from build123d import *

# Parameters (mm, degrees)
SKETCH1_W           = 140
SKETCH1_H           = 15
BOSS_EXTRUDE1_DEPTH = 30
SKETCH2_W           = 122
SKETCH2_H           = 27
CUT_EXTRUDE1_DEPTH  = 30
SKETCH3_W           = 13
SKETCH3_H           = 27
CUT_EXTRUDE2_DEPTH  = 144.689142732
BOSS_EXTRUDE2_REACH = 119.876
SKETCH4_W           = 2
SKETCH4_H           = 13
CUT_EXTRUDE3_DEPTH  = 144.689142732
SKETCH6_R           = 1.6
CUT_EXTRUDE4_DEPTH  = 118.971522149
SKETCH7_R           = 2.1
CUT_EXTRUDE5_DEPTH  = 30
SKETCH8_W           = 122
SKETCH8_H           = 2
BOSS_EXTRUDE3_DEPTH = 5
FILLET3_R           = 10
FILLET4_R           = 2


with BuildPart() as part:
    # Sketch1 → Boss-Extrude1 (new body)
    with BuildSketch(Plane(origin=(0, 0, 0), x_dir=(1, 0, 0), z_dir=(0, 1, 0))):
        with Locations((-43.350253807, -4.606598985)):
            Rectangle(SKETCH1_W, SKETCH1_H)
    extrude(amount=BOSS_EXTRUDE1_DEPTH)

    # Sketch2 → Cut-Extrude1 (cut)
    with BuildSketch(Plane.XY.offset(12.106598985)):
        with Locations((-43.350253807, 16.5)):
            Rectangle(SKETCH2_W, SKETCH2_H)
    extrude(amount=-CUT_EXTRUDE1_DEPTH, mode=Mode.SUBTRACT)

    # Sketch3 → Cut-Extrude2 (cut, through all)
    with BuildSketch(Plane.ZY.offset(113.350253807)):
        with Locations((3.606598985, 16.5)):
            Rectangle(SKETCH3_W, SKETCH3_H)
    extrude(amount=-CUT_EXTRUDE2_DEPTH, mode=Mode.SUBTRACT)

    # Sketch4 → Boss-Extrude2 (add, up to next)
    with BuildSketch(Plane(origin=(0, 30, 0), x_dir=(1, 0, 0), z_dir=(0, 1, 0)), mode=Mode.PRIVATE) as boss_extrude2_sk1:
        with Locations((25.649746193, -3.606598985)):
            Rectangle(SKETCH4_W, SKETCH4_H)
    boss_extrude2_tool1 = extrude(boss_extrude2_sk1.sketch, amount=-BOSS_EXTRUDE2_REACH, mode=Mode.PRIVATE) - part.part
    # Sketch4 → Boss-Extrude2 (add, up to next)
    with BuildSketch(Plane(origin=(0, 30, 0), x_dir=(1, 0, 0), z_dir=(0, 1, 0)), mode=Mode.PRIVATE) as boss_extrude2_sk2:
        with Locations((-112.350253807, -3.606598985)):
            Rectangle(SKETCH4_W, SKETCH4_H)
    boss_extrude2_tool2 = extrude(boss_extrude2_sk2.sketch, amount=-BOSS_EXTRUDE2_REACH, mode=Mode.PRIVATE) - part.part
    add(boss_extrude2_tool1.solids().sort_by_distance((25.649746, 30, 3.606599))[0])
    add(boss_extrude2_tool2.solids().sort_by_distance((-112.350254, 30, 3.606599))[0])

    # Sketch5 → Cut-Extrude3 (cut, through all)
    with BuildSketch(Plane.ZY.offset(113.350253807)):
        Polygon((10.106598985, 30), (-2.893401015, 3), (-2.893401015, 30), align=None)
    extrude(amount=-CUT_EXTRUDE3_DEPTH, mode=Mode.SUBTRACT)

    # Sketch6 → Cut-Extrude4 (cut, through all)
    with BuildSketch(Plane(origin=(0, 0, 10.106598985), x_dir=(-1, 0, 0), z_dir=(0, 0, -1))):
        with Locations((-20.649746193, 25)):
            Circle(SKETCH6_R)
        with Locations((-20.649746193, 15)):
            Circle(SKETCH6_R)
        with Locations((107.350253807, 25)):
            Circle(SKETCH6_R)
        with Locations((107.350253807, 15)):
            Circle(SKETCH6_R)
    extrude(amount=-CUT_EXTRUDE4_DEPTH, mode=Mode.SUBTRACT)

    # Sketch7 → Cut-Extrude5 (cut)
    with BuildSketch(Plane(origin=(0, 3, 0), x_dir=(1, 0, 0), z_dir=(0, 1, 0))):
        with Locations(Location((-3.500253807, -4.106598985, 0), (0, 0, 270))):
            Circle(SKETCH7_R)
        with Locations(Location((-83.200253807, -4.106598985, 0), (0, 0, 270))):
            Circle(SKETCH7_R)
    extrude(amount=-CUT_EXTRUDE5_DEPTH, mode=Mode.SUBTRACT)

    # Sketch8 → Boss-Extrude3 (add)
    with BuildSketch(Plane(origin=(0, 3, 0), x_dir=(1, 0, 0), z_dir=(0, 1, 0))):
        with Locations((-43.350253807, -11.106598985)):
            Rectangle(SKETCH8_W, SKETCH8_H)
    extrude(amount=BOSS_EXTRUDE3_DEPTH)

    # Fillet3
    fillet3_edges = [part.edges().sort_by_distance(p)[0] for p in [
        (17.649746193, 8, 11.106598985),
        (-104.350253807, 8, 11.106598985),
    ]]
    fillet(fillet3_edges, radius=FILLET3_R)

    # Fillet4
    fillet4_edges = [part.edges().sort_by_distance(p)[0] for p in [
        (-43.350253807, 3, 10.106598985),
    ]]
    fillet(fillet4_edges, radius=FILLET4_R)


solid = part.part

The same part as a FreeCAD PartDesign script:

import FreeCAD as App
import Part
import Sketcher


def edges_at(feature, points):
    """Names of the edges that pass closest to the given points."""
    edges = feature.Shape.Edges
    near = lambda p: min(range(len(edges)), key=lambda i: edges[i].distToShape(Part.Vertex(*p))[0])
    return sorted({f"Edge{near(p) + 1}" for p in points})

doc = App.newDocument("Part")
params = doc.addObject("Spreadsheet::Sheet", "Params")
for row, (alias, value) in enumerate([
    ("sketch1_width", "140 mm"),
    ("sketch1_height", "15 mm"),
    ("pad1_length", "30 mm"),
    ("sketch2_width", "122 mm"),
    ("sketch2_height", "27 mm"),
    ("pocket1_length", "30 mm"),
    ("sketch3_width", "27 mm"),
    ("sketch3_height", "13 mm"),
    ("sketch4_width", "2 mm"),
    ("sketch4_height", "13 mm"),
    ("sketch5_width", "2 mm"),
    ("sketch5_height", "13 mm"),
    ("sketch6_width", "27 mm"),
    ("sketch6_height", "13 mm"),
    ("sketch7_diameter", "3.2 mm"),
    ("sketch8_diameter", "4.2 mm"),
    ("pocket5_length", "30 mm"),
    ("sketch9_width", "122 mm"),
    ("sketch9_height", "2 mm"),
    ("pad4_length", "5 mm"),
    ("fillet_radius", "10 mm"),
    ("fillet2_radius", "2 mm"),
], start=1):
    params.set(f"A{row}", alias)
    params.set(f"B{row}", "=" + value)
    params.setAlias(f"B{row}", alias)

body = doc.addObject("PartDesign::Body", "Body")

sketch1 = body.newObject("Sketcher::SketchObject", "Sketch")
sketch1.AttachmentSupport = (doc.getObject("XZ_Plane"), [""])
sketch1.MapMode = "FlatFace"
sketch1.addGeometry(Part.LineSegment(App.Vector(-113, -3, 0), App.Vector(-113, 12, 0)), False)
sketch1.addGeometry(Part.LineSegment(App.Vector(-113, 12, 0), App.Vector(27, 12, 0)), False)
sketch1.addGeometry(Part.LineSegment(App.Vector(27, 12, 0), App.Vector(27, -3, 0)), False)
sketch1.addGeometry(Part.LineSegment(App.Vector(27, -3, 0), App.Vector(-113, -3, 0)), False)
sketch1.addConstraint(Sketcher.Constraint("Coincident", 0, 2, 1, 1))
sketch1.addConstraint(Sketcher.Constraint("Coincident", 1, 2, 2, 1))
sketch1.addConstraint(Sketcher.Constraint("Coincident", 2, 2, 3, 1))
sketch1.addConstraint(Sketcher.Constraint("Coincident", 3, 2, 0, 1))
sketch1.addConstraint(Sketcher.Constraint("Vertical", 0))
sketch1.addConstraint(Sketcher.Constraint("Horizontal", 1))
sketch1.addConstraint(Sketcher.Constraint("Vertical", 2))
sketch1.addConstraint(Sketcher.Constraint("Horizontal", 3))
sketch1.addConstraint(Sketcher.Constraint("DistanceX", 1, 1, 1, 2, 140.0))
sketch1.addConstraint(Sketcher.Constraint("DistanceY", 0, 1, 0, 2, 15.0))
sketch1.addConstraint(Sketcher.Constraint("DistanceY", -1, 1, 0, 2, 12.106599))
sketch1.addConstraint(Sketcher.Constraint("DistanceX", 0, 2, -1, 1, 113.350254))
sketch1.setExpression("Constraints[8]", "Params.sketch1_width")
sketch1.setExpression("Constraints[9]", "Params.sketch1_height")
pad1 = body.newObject("PartDesign::Pad", "Pad")
pad1.Profile = sketch1
pad1.setExpression("Length", "Params.pad1_length")
pad1.Reversed = True

sketch2 = body.newObject("Sketcher::SketchObject", "Sketch001")
sketch2.AttachmentSupport = (doc.getObject("XY_Plane"), [""])
sketch2.MapMode = "FlatFace"
sketch2.AttachmentOffset = App.Placement(App.Vector(0, 0, 12.106599), App.Rotation())
sketch2.addGeometry(Part.LineSegment(App.Vector(-104, 30, 0), App.Vector(-104, 3, 0)), False)
sketch2.addGeometry(Part.LineSegment(App.Vector(-104, 3, 0), App.Vector(18, 3, 0)), False)
sketch2.addGeometry(Part.LineSegment(App.Vector(18, 3, 0), App.Vector(18, 30, 0)), False)
sketch2.addGeometry(Part.LineSegment(App.Vector(18, 30, 0), App.Vector(-104, 30, 0)), False)
sketch2.addConstraint(Sketcher.Constraint("Coincident", 0, 2, 1, 1))
sketch2.addConstraint(Sketcher.Constraint("Coincident", 1, 2, 2, 1))
sketch2.addConstraint(Sketcher.Constraint("Coincident", 2, 2, 3, 1))
sketch2.addConstraint(Sketcher.Constraint("Coincident", 3, 2, 0, 1))
sketch2.addConstraint(Sketcher.Constraint("Vertical", 0))
sketch2.addConstraint(Sketcher.Constraint("Horizontal", 1))
sketch2.addConstraint(Sketcher.Constraint("Vertical", 2))
sketch2.addConstraint(Sketcher.Constraint("Horizontal", 3))
sketch2.addConstraint(Sketcher.Constraint("DistanceX", 1, 1, 1, 2, 122.0))
sketch2.addConstraint(Sketcher.Constraint("DistanceY", 0, 2, 0, 1, 27.0))
sketch2.addConstraint(Sketcher.Constraint("DistanceY", -1, 1, 0, 2, 3.0))
sketch2.addConstraint(Sketcher.Constraint("DistanceX", 0, 2, -1, 1, 104.350254))
sketch2.setExpression("Constraints[8]", "Params.sketch2_width")
sketch2.setExpression("Constraints[9]", "Params.sketch2_height")
pocket1 = body.newObject("PartDesign::Pocket", "Pocket")
pocket1.Profile = sketch2
pocket1.setExpression("Length", "Params.pocket1_length")

sketch3 = body.newObject("Sketcher::SketchObject", "Sketch002")
sketch3.AttachmentSupport = (doc.getObject("YZ_Plane"), [""])
sketch3.MapMode = "FlatFace"
sketch3.AttachmentOffset = App.Placement(App.Vector(0, 0, -113.350254), App.Rotation())
sketch3.addGeometry(Part.LineSegment(App.Vector(30, -3, 0), App.Vector(3, -3, 0)), False)
sketch3.addGeometry(Part.LineSegment(App.Vector(3, -3, 0), App.Vector(3, 10, 0)), False)
sketch3.addGeometry(Part.LineSegment(App.Vector(3, 10, 0), App.Vector(30, 10, 0)), False)
sketch3.addGeometry(Part.LineSegment(App.Vector(30, 10, 0), App.Vector(30, -3, 0)), False)
sketch3.addConstraint(Sketcher.Constraint("Coincident", 0, 2, 1, 1))
sketch3.addConstraint(Sketcher.Constraint("Coincident", 1, 2, 2, 1))
sketch3.addConstraint(Sketcher.Constraint("Coincident", 2, 2, 3, 1))
sketch3.addConstraint(Sketcher.Constraint("Coincident", 3, 2, 0, 1))
sketch3.addConstraint(Sketcher.Constraint("Horizontal", 0))
sketch3.addConstraint(Sketcher.Constraint("Vertical", 1))
sketch3.addConstraint(Sketcher.Constraint("Horizontal", 2))
sketch3.addConstraint(Sketcher.Constraint("Vertical", 3))
sketch3.addConstraint(Sketcher.Constraint("DistanceX", 0, 2, 0, 1, 27.0))
sketch3.addConstraint(Sketcher.Constraint("DistanceY", 1, 1, 1, 2, 13.0))
sketch3.addConstraint(Sketcher.Constraint("DistanceX", -1, 1, 0, 2, 3.0))
sketch3.addConstraint(Sketcher.Constraint("DistanceY", 0, 2, -1, 1, 2.893401))
sketch3.setExpression("Constraints[8]", "Params.sketch3_width")
sketch3.setExpression("Constraints[9]", "Params.sketch3_height")
pocket2 = body.newObject("PartDesign::Pocket", "Pocket001")
pocket2.Profile = sketch3
pocket2.Type = "ThroughAll"
pocket2.Reversed = True

sketch4 = body.newObject("Sketcher::SketchObject", "Sketch003")
sketch4.AttachmentSupport = (doc.getObject("XZ_Plane"), [""])
sketch4.MapMode = "FlatFace"
sketch4.AttachmentOffset = App.Placement(App.Vector(0, 0, -30), App.Rotation())
sketch4.addGeometry(Part.LineSegment(App.Vector(24.6, -2.9, 0), App.Vector(24.6, 10.1, 0)), False)
sketch4.addGeometry(Part.LineSegment(App.Vector(24.6, 10.1, 0), App.Vector(26.6, 10.1, 0)), False)
sketch4.addGeometry(Part.LineSegment(App.Vector(26.6, 10.1, 0), App.Vector(26.6, -2.9, 0)), False)
sketch4.addGeometry(Part.LineSegment(App.Vector(26.6, -2.9, 0), App.Vector(24.6, -2.9, 0)), False)
sketch4.addConstraint(Sketcher.Constraint("Coincident", 0, 2, 1, 1))
sketch4.addConstraint(Sketcher.Constraint("Coincident", 1, 2, 2, 1))
sketch4.addConstraint(Sketcher.Constraint("Coincident", 2, 2, 3, 1))
sketch4.addConstraint(Sketcher.Constraint("Coincident", 3, 2, 0, 1))
sketch4.addConstraint(Sketcher.Constraint("Vertical", 0))
sketch4.addConstraint(Sketcher.Constraint("Horizontal", 1))
sketch4.addConstraint(Sketcher.Constraint("Vertical", 2))
sketch4.addConstraint(Sketcher.Constraint("Horizontal", 3))
sketch4.addConstraint(Sketcher.Constraint("DistanceX", 1, 1, 1, 2, 2.0))
sketch4.addConstraint(Sketcher.Constraint("DistanceY", 0, 1, 0, 2, 13.0))
sketch4.addConstraint(Sketcher.Constraint("DistanceY", -1, 1, 0, 2, 10.106599))
sketch4.addConstraint(Sketcher.Constraint("DistanceX", -1, 1, 0, 2, 24.649746))
sketch4.setExpression("Constraints[8]", "Params.sketch4_width")
sketch4.setExpression("Constraints[9]", "Params.sketch4_height")
pad2 = body.newObject("PartDesign::Pad", "Pad001")
pad2.Profile = sketch4
pad2.Type = "UpToFirst"

sketch5 = body.newObject("Sketcher::SketchObject", "Sketch004")
sketch5.AttachmentSupport = (doc.getObject("XZ_Plane"), [""])
sketch5.MapMode = "FlatFace"
sketch5.AttachmentOffset = App.Placement(App.Vector(0, 0, -30), App.Rotation())
sketch5.addGeometry(Part.LineSegment(App.Vector(-113.4, -2.9, 0), App.Vector(-113.4, 10.1, 0)), False)
sketch5.addGeometry(Part.LineSegment(App.Vector(-113.4, 10.1, 0), App.Vector(-111.4, 10.1, 0)), False)
sketch5.addGeometry(Part.LineSegment(App.Vector(-111.4, 10.1, 0), App.Vector(-111.4, -2.9, 0)), False)
sketch5.addGeometry(Part.LineSegment(App.Vector(-111.4, -2.9, 0), App.Vector(-113.4, -2.9, 0)), False)
sketch5.addConstraint(Sketcher.Constraint("Coincident", 0, 2, 1, 1))
sketch5.addConstraint(Sketcher.Constraint("Coincident", 1, 2, 2, 1))
sketch5.addConstraint(Sketcher.Constraint("Coincident", 2, 2, 3, 1))
sketch5.addConstraint(Sketcher.Constraint("Coincident", 3, 2, 0, 1))
sketch5.addConstraint(Sketcher.Constraint("Vertical", 0))
sketch5.addConstraint(Sketcher.Constraint("Horizontal", 1))
sketch5.addConstraint(Sketcher.Constraint("Vertical", 2))
sketch5.addConstraint(Sketcher.Constraint("Horizontal", 3))
sketch5.addConstraint(Sketcher.Constraint("DistanceX", 1, 1, 1, 2, 2.0))
sketch5.addConstraint(Sketcher.Constraint("DistanceY", 0, 1, 0, 2, 13.0))
sketch5.addConstraint(Sketcher.Constraint("DistanceY", -1, 1, 0, 2, 10.106599))
sketch5.addConstraint(Sketcher.Constraint("DistanceX", 0, 2, -1, 1, 113.350254))
sketch5.setExpression("Constraints[8]", "Params.sketch5_width")
sketch5.setExpression("Constraints[9]", "Params.sketch5_height")
pad3 = body.newObject("PartDesign::Pad", "Pad002")
pad3.Profile = sketch5
pad3.Type = "UpToFirst"

sketch6 = body.newObject("Sketcher::SketchObject", "Sketch005")
sketch6.AttachmentSupport = (doc.getObject("YZ_Plane"), [""])
sketch6.MapMode = "FlatFace"
sketch6.AttachmentOffset = App.Placement(App.Vector(0, 0, -113.350254), App.Rotation())
sketch6.addGeometry(Part.LineSegment(App.Vector(3, -3, 0), App.Vector(30, 10, 0)), False)
sketch6.addGeometry(Part.LineSegment(App.Vector(30, 10, 0), App.Vector(30, -3, 0)), False)
sketch6.addGeometry(Part.LineSegment(App.Vector(30, -3, 0), App.Vector(3, -3, 0)), False)
sketch6.addConstraint(Sketcher.Constraint("Coincident", 0, 2, 1, 1))
sketch6.addConstraint(Sketcher.Constraint("Coincident", 1, 2, 2, 1))
sketch6.addConstraint(Sketcher.Constraint("Coincident", 2, 2, 0, 1))
sketch6.addConstraint(Sketcher.Constraint("Vertical", 1))
sketch6.addConstraint(Sketcher.Constraint("Horizontal", 2))
sketch6.addConstraint(Sketcher.Constraint("DistanceX", 2, 2, 2, 1, 27.0))
sketch6.addConstraint(Sketcher.Constraint("DistanceY", 1, 2, 1, 1, 13.0))
sketch6.addConstraint(Sketcher.Constraint("DistanceX", -1, 1, 0, 2, 30.0))
sketch6.addConstraint(Sketcher.Constraint("DistanceY", -1, 1, 0, 2, 10.106599))
sketch6.setExpression("Constraints[5]", "Params.sketch6_width")
sketch6.setExpression("Constraints[6]", "Params.sketch6_height")
pocket3 = body.newObject("PartDesign::Pocket", "Pocket002")
pocket3.Profile = sketch6
pocket3.Type = "ThroughAll"
pocket3.Reversed = True

sketch7 = body.newObject("Sketcher::SketchObject", "Sketch006")
sketch7.AttachmentSupport = (doc.getObject("XY_Plane"), [""])
sketch7.MapMode = "FlatFace"
sketch7.AttachmentOffset = App.Placement(App.Vector(0, 0, 10.106599), App.Rotation())
sketch7.addGeometry(Part.Circle(App.Vector(20.6, 25, 0), App.Vector(0, 0, 1), 1.6), False)
sketch7.addGeometry(Part.Circle(App.Vector(20.6, 15, 0), App.Vector(0, 0, 1), 1.6), False)
sketch7.addGeometry(Part.Circle(App.Vector(-107.4, 25, 0), App.Vector(0, 0, 1), 1.6), False)
sketch7.addGeometry(Part.Circle(App.Vector(-107.4, 15, 0), App.Vector(0, 0, 1), 1.6), False)
sketch7.addConstraint(Sketcher.Constraint("Equal", 0, 1))
sketch7.addConstraint(Sketcher.Constraint("Equal", 1, 2))
sketch7.addConstraint(Sketcher.Constraint("Equal", 2, 3))
sketch7.addConstraint(Sketcher.Constraint("Horizontal", 0, 3, 2, 3))
sketch7.addConstraint(Sketcher.Constraint("Horizontal", 1, 3, 3, 3))
sketch7.addConstraint(Sketcher.Constraint("Vertical", 0, 3, 1, 3))
sketch7.addConstraint(Sketcher.Constraint("Vertical", 2, 3, 3, 3))
sketch7.addConstraint(Sketcher.Constraint("Diameter", 0, 3.2))
sketch7.addConstraint(Sketcher.Constraint("DistanceY", -1, 1, 0, 3, 25.0))
sketch7.addConstraint(Sketcher.Constraint("DistanceY", -1, 1, 1, 3, 15.0))
sketch7.addConstraint(Sketcher.Constraint("DistanceX", 2, 3, 0, 3, 128.0))
sketch7.addConstraint(Sketcher.Constraint("DistanceX", -1, 1, 0, 3, 20.649746))
sketch7.setExpression("Constraints[7]", "Params.sketch7_diameter")
pocket4 = body.newObject("PartDesign::Pocket", "Pocket003")
pocket4.Profile = sketch7
pocket4.Type = "ThroughAll"
pocket4.Reversed = True

sketch8 = body.newObject("Sketcher::SketchObject", "Sketch007")
sketch8.AttachmentSupport = (doc.getObject("XZ_Plane"), [""])
sketch8.MapMode = "FlatFace"
sketch8.AttachmentOffset = App.Placement(App.Vector(0, 0, -3), App.Rotation())
sketch8.addGeometry(Part.Circle(App.Vector(-3.5, 4.1, 0), App.Vector(0, 0, 1), 2.1), False)
sketch8.addGeometry(Part.Circle(App.Vector(-83.2, 4.1, 0), App.Vector(0, 0, 1), 2.1), False)
sketch8.addConstraint(Sketcher.Constraint("Equal", 0, 1))
sketch8.addConstraint(Sketcher.Constraint("Horizontal", 0, 3, 1, 3))
sketch8.addConstraint(Sketcher.Constraint("Diameter", 0, 4.2))
sketch8.addConstraint(Sketcher.Constraint("DistanceX", 1, 3, 0, 3, 79.7))
sketch8.addConstraint(Sketcher.Constraint("DistanceY", -1, 1, 0, 3, 4.106599))
sketch8.addConstraint(Sketcher.Constraint("DistanceX", 0, 3, -1, 1, 3.500254))
sketch8.setExpression("Constraints[2]", "Params.sketch8_diameter")
pocket5 = body.newObject("PartDesign::Pocket", "Pocket004")
pocket5.Profile = sketch8
pocket5.setExpression("Length", "Params.pocket5_length")
pocket5.Reversed = True

sketch9 = body.newObject("Sketcher::SketchObject", "Sketch008")
sketch9.AttachmentSupport = (doc.getObject("XZ_Plane"), [""])
sketch9.MapMode = "FlatFace"
sketch9.AttachmentOffset = App.Placement(App.Vector(0, 0, -3), App.Rotation())
sketch9.addGeometry(Part.LineSegment(App.Vector(-104.4, 10.1, 0), App.Vector(-104.4, 12.1, 0)), False)
sketch9.addGeometry(Part.LineSegment(App.Vector(-104.4, 12.1, 0), App.Vector(17.6, 12.1, 0)), False)
sketch9.addGeometry(Part.LineSegment(App.Vector(17.6, 12.1, 0), App.Vector(17.6, 10.1, 0)), False)
sketch9.addGeometry(Part.LineSegment(App.Vector(17.6, 10.1, 0), App.Vector(-104.4, 10.1, 0)), False)
sketch9.addConstraint(Sketcher.Constraint("Coincident", 0, 2, 1, 1))
sketch9.addConstraint(Sketcher.Constraint("Coincident", 1, 2, 2, 1))
sketch9.addConstraint(Sketcher.Constraint("Coincident", 2, 2, 3, 1))
sketch9.addConstraint(Sketcher.Constraint("Coincident", 3, 2, 0, 1))
sketch9.addConstraint(Sketcher.Constraint("Vertical", 0))
sketch9.addConstraint(Sketcher.Constraint("Horizontal", 1))
sketch9.addConstraint(Sketcher.Constraint("Vertical", 2))
sketch9.addConstraint(Sketcher.Constraint("Horizontal", 3))
sketch9.addConstraint(Sketcher.Constraint("DistanceX", 1, 1, 1, 2, 122.0))
sketch9.addConstraint(Sketcher.Constraint("DistanceY", 0, 1, 0, 2, 2.0))
sketch9.addConstraint(Sketcher.Constraint("DistanceY", -1, 1, 0, 2, 12.106599))
sketch9.addConstraint(Sketcher.Constraint("DistanceX", 0, 2, -1, 1, 104.350254))
sketch9.setExpression("Constraints[8]", "Params.sketch9_width")
sketch9.setExpression("Constraints[9]", "Params.sketch9_height")
pad4 = body.newObject("PartDesign::Pad", "Pad003")
pad4.Profile = sketch9
pad4.setExpression("Length", "Params.pad4_length")
pad4.Reversed = True
doc.recompute()

fillet = body.newObject("PartDesign::Fillet", "Fillet")
fillet.Base = (pad4, edges_at(pad4, [(17.65, 8, 11.107), (-104.35, 8, 11.107)]))
fillet.setExpression("Radius", "Params.fillet_radius")
doc.recompute()

fillet2 = body.newObject("PartDesign::Fillet", "Fillet001")
fillet2.Base = (fillet, edges_at(fillet, [(-43.35, 3, 10.107)]))
fillet2.setExpression("Radius", "Params.fillet2_radius")

doc.recompute()
